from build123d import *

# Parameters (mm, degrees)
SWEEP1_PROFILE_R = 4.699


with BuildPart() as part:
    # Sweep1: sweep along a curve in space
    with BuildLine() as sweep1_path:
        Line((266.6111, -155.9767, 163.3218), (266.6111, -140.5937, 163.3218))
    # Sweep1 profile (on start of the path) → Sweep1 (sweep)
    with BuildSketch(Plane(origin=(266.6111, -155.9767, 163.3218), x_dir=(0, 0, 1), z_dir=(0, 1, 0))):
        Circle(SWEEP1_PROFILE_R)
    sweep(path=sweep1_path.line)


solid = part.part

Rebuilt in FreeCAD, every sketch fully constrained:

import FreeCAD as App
import Part
import Sketcher
from FreeCAD import Vector
Q = App.Units.Quantity

doc = App.newDocument("Part")
body = doc.addObject("PartDesign::Body", "Body")

# Sketch on XZ plane
sketch1 = doc.addObject("Sketcher::SketchObject", "Sketch")
body.addObject(sketch1)
sketch1.AttachmentSupport = (doc.XZ_Plane, [""])
sketch1.MapMode = "FlatFace"
sketch1.AttachmentOffset = App.Placement(Vector(0, 0, 155.9767), App.Rotation())
sketch1.addGeometry(Part.Circle(Vector(266.6111, 163.3218, 0), Vector(0, 0, 1), 4.699), False)
sketch1.addConstraint([
    Sketcher.Constraint("Diameter", 0, Q("0.37 in")),
    Sketcher.Constraint("DistanceX", -1, 1, 0, 3, Q("10.4965 in")),
    Sketcher.Constraint("DistanceY", -1, 1, 0, 3, 163.3218),
])

# Sketch on XY plane
sketch2 = doc.addObject("Sketcher::SketchObject", "Sketch001")
body.addObject(sketch2)
sketch2.AttachmentSupport = (doc.XY_Plane, [""])
sketch2.MapMode = "FlatFace"
sketch2.AttachmentOffset = App.Placement(Vector(0, 0, 163.3218), App.Rotation())
sketch2.addGeometry(Part.LineSegment(Vector(266.6111, -155.9767, 0), Vector(266.6111, -140.5937, 0)), False)
sketch2.addConstraint([
    Sketcher.Constraint("Vertical", 0),
    Sketcher.Constraint("DistanceY", 0, 1, 0, 2, 15.383),
    Sketcher.Constraint("DistanceX", -1, 1, 0, 1, Q("10.4965 in")),
    Sketcher.Constraint("DistanceY", 0, 1, -1, 1, 155.9767),
])
doc.recompute()

additivepipe = doc.addObject("PartDesign::AdditivePipe", "AdditivePipe")
body.addObject(additivepipe)
additivepipe.Profile = sketch1
additivepipe.Spine = (sketch2, ["Edge1"])

doc.recompute()
